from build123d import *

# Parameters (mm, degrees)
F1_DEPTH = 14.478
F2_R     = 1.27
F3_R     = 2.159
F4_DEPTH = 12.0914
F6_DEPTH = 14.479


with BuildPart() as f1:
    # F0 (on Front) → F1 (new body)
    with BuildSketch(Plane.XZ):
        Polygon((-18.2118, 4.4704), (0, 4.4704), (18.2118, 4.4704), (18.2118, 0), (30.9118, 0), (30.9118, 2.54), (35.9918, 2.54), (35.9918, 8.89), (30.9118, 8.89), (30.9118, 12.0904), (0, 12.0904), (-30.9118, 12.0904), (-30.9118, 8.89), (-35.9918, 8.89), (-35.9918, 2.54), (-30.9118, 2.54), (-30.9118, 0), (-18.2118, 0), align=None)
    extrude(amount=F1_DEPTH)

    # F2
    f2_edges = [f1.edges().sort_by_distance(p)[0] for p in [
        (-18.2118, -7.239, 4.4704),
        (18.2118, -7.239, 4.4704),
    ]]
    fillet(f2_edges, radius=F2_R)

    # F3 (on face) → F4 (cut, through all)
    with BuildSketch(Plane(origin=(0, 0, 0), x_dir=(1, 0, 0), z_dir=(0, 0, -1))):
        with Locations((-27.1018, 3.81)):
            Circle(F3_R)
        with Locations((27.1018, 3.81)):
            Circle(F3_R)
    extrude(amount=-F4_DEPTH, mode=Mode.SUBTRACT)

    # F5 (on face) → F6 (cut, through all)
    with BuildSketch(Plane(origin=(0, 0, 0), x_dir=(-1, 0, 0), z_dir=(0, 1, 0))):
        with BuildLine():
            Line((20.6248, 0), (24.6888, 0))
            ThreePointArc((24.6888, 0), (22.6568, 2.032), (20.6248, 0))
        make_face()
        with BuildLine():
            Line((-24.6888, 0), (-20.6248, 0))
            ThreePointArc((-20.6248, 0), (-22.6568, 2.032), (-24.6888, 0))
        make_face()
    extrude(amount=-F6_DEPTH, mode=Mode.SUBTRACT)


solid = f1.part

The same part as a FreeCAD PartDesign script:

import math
import FreeCAD as App
import Part
import Sketcher
from FreeCAD import Vector
Q = App.Units.Quantity


def edges_at(feature, points):
    """Names of the edges that pass closest to the given points."""
    edges = feature.Shape.Edges
    near = lambda p: min(range(len(edges)), key=lambda i: edges[i].distToShape(Part.Vertex(*p))[0])
    return sorted({f"Edge{near(p) + 1}" for p in points})

doc = App.newDocument("Part")
body = doc.addObject("PartDesign::Body", "Body")

# Sketch on XZ plane
sketch1 = doc.addObject("Sketcher::SketchObject", "Sketch")
body.addObject(sketch1)
sketch1.AttachmentSupport = (doc.XZ_Plane, [""])
sketch1.MapMode = "FlatFace"
sketch1.addGeometry(Part.LineSegment(Vector(-18.2, 4.5, 0), Vector(18.2, 4.5, 0)), False)
sketch1.addGeometry(Part.LineSegment(Vector(18.2, 4.5, 0), Vector(18.2, 0, 0)), False)
sketch1.addGeometry(Part.LineSegment(Vector(18.2, 0, 0), Vector(30.9, 0, 0)), False)
sketch1.addGeometry(Part.LineSegment(Vector(30.9, 0, 0), Vector(30.9, 2.5, 0)), False)
sketch1.addGeometry(Part.LineSegment(Vector(30.9, 2.5, 0), Vector(36, 2.5, 0)), False)
sketch1.addGeometry(Part.LineSegment(Vector(36, 2.5, 0), Vector(36, 8.9, 0)), False)
sketch1.addGeometry(Part.LineSegment(Vector(36, 8.9, 0), Vector(30.9, 8.9, 0)), False)
sketch1.addGeometry(Part.LineSegment(Vector(30.9, 8.9, 0), Vector(30.9, 12.1, 0)), False)
sketch1.addGeometry(Part.LineSegment(Vector(30.9, 12.1, 0), Vector(-30.9, 12.1, 0)), False)
sketch1.addGeometry(Part.LineSegment(Vector(-30.9, 12.1, 0), Vector(-30.9, 8.9, 0)), False)
sketch1.addGeometry(Part.LineSegment(Vector(-30.9, 8.9, 0), Vector(-36, 8.9, 0)), False)
sketch1.addGeometry(Part.LineSegment(Vector(-36, 8.9, 0), Vector(-36, 2.5, 0)), False)
sketch1.addGeometry(Part.LineSegment(Vector(-36, 2.5, 0), Vector(-30.9, 2.5, 0)), False)
sketch1.addGeometry(Part.LineSegment(Vector(-30.9, 2.5, 0), Vector(-30.9, 0, 0)), False)
sketch1.addGeometry(Part.LineSegment(Vector(-30.9, 0, 0), Vector(-18.2, 0, 0)), False)
sketch1.addGeometry(Part.LineSegment(Vector(-18.2, 0, 0), Vector(-18.2, 4.5, 0)), False)
sketch1.addConstraint(Sketcher.Constraint("Coincident", 0, 2, 1, 1))
sketch1.addConstraint(Sketcher.Constraint("Coincident", 1, 2, 2, 1))
sketch1.addConstraint(Sketcher.Constraint("Coincident", 2, 2, 3, 1))
sketch1.addConstraint(Sketcher.Constraint("Coincident", 3, 2, 4, 1))
sketch1.addConstraint(Sketcher.Constraint("Coincident", 4, 2, 5, 1))
sketch1.addConstraint(Sketcher.Constraint("Coincident", 5, 2, 6, 1))
sketch1.addConstraint(Sketcher.Constraint("Coincident", 6, 2, 7, 1))
sketch1.addConstraint(Sketcher.Constraint("Coincident", 7, 2, 8, 1))
sketch1.addConstraint(Sketcher.Constraint("Coincident", 8, 2, 9, 1))
sketch1.addConstraint(Sketcher.Constraint("Coincident", 9, 2, 10, 1))
sketch1.addConstraint(Sketcher.Constraint("Coincident", 10, 2, 11, 1))
sketch1.addConstraint(Sketcher.Constraint("Coincident", 11, 2, 12, 1))
sketch1.addConstraint(Sketcher.Constraint("Coincident", 12, 2, 13, 1))
sketch1.addConstraint(Sketcher.Constraint("Coincident", 13, 2, 14, 1))
sketch1.addConstraint(Sketcher.Constraint("Coincident", 14, 2, 15, 1))
sketch1.addConstraint(Sketcher.Constraint("Coincident", 15, 2, 0, 1))
sketch1.addConstraint(Sketcher.Constraint("Horizontal", 0))
sketch1.addConstraint(Sketcher.Constraint("Vertical", 1))
sketch1.addConstraint(Sketcher.Constraint("Horizontal", 2))
sketch1.addConstraint(Sketcher.Constraint("Vertical", 3))
sketch1.addConstraint(Sketcher.Constraint("Horizontal", 4))
sketch1.addConstraint(Sketcher.Constraint("Vertical", 5))
sketch1.addConstraint(Sketcher.Constraint("Horizontal", 6))
sketch1.addConstraint(Sketcher.Constraint("Vertical", 7))
sketch1.addConstraint(Sketcher.Constraint("Horizontal", 8))
sketch1.addConstraint(Sketcher.Constraint("Vertical", 9))
sketch1.addConstraint(Sketcher.Constraint("Horizontal", 10))
sketch1.addConstraint(Sketcher.Constraint("Vertical", 11))
sketch1.addConstraint(Sketcher.Constraint("Horizontal", 12))
sketch1.addConstraint(Sketcher.Constraint("Vertical", 13))
sketch1.addConstraint(Sketcher.Constraint("Horizontal", 14))
sketch1.addConstraint(Sketcher.Constraint("Vertical", 15))
sketch1.addConstraint(Sketcher.Constraint("Symmetric", 2, 2, 13, 2, -1, 1))
sketch1.addConstraint(Sketcher.Constraint("Symmetric", 6, 2, 9, 2, -2))
sketch1.addConstraint(Sketcher.Constraint("Symmetric", 4, 2, 11, 2, -2))
sketch1.addConstraint(Sketcher.Constraint("Symmetric", 1, 2, 14, 2, -2))
sketch1.addConstraint(Sketcher.Constraint("Vertical", 3, 2, 6, 2))
sketch1.addConstraint(Sketcher.Constraint("DistanceX", 2, 1, 2, 2, Q("0.5 in")))
sketch1.addConstraint(Sketcher.Constraint("DistanceX", 4, 1, 4, 2, Q("0.2 in")))
sketch1.addConstraint(Sketcher.Constraint("DistanceY", 3, 1, 3, 2, Q("0.1 in")))
sketch1.addConstraint(Sketcher.Constraint("DistanceY", 5, 1, 5, 2, Q("0.25 in")))
sketch1.addConstraint(Sketcher.Constraint("DistanceY", 0, 2, 8, 2, Q("0.3 in")))
sketch1.addConstraint(Sketcher.Constraint("DistanceX", 0, 1, 0, 2, Q("1.434 in")))
sketch1.addConstraint(Sketcher.Constraint("DistanceY", 1, 2, 1, 1, Q("0.176 in")))
pad1 = doc.addObject("PartDesign::Pad", "Pad")
body.addObject(pad1)
pad1.Profile = sketch1
pad1.Length = Q("0.57 in")
doc.recompute()

fillet = doc.addObject("PartDesign::Fillet", "Fillet")
body.addObject(fillet)
fillet.Base = (pad1, edges_at(pad1, [(-18.212, -7.239, 4.47), (18.212, -7.239, 4.47)]))
fillet.Radius = Q("0.05 in")

# Sketch on XY plane
sketch2 = doc.addObject("Sketcher::SketchObject", "Sketch001")
body.addObject(sketch2)
sketch2.AttachmentSupport = (doc.XY_Plane, [""])
sketch2.MapMode = "FlatFace"
sketch2.addGeometry(Part.Circle(Vector(-27.1, -3.8, 0), Vector(0, 0, 1), 2.2), False)
sketch2.addGeometry(Part.Circle(Vector(27.1, -3.8, 0), Vector(0, 0, 1), 2.2), False)
sketch2.addConstraint(Sketcher.Constraint("Equal", 0, 1))
sketch2.addConstraint(Sketcher.Constraint("Symmetric", 0, 3, 1, 3, -2))
sketch2.addConstraint(Sketcher.Constraint("Diameter", 0, Q("0.17 in")))
sketch2.addConstraint(Sketcher.Constraint("DistanceY", 0, 3, -1, 1, Q("0.15 in")))
sketch2.addConstraint(Sketcher.Constraint("DistanceX", 0, 3, -1, 1, Q("1.067 in")))
pocket1 = doc.addObject("PartDesign::Pocket", "Pocket")
body.addObject(pocket1)
pocket1.Profile = sketch2
pocket1.Type = "ThroughAll"
pocket1.Reversed = True

# Sketch on XZ plane
sketch3 = doc.addObject("Sketcher::SketchObject", "Sketch002")
body.addObject(sketch3)
sketch3.AttachmentSupport = (doc.XZ_Plane, [""])
sketch3.MapMode = "FlatFace"
sketch3.addGeometry(Part.LineSegment(Vector(-20.6, 0, 0), Vector(-24.7, 0, 0)), False)
sketch3.addGeometry(Part.ArcOfCircle(Part.Circle(Vector(-22.7, 0, 0), Vector(0, 0, 1), 2), math.radians(0), math.radians(180)), False)
sketch3.addGeometry(Part.LineSegment(Vector(24.7, 0, 0), Vector(20.6, 0, 0)), False)
sketch3.addGeometry(Part.ArcOfCircle(Part.Circle(Vector(22.7, 0, 0), Vector(0, 0, 1), 2), math.radians(0), math.radians(180)), False)
sketch3.addConstraint(Sketcher.Constraint("Coincident", 0, 1, 1, 1))
sketch3.addConstraint(Sketcher.Constraint("Coincident", 1, 2, 0, 2))
sketch3.addConstraint(Sketcher.Constraint("Coincident", 2, 1, 3, 1))
sketch3.addConstraint(Sketcher.Constraint("Coincident", 3, 2, 2, 2))
sketch3.addConstraint(Sketcher.Constraint("Horizontal", 0))
sketch3.addConstraint(Sketcher.Constraint("Horizontal", 2))
sketch3.addConstraint(Sketcher.Constraint("Equal", 1, 3))
sketch3.addConstraint(Sketcher.Constraint("Symmetric", 1, 3, 3, 3, -1, 1))
sketch3.addConstraint(Sketcher.Constraint("PointOnObject", 1, 3, -1))
sketch3.addConstraint(Sketcher.Constraint("PointOnObject", 0, 1, -1))
sketch3.addConstraint(Sketcher.Constraint("PointOnObject", 2, 1, -1))
sketch3.addConstraint(Sketcher.Constraint("Radius", 1, Q("0.08 in")))
sketch3.addConstraint(Sketcher.Constraint("DistanceX", 1, 3, -1, 1, Q("0.892 in")))
pocket2 = doc.addObject("PartDesign::Pocket", "Pocket001")
body.addObject(pocket2)
pocket2.Profile = sketch3
pocket2.Type = "ThroughAll"
pocket2.Reversed = True

doc.recompute()
